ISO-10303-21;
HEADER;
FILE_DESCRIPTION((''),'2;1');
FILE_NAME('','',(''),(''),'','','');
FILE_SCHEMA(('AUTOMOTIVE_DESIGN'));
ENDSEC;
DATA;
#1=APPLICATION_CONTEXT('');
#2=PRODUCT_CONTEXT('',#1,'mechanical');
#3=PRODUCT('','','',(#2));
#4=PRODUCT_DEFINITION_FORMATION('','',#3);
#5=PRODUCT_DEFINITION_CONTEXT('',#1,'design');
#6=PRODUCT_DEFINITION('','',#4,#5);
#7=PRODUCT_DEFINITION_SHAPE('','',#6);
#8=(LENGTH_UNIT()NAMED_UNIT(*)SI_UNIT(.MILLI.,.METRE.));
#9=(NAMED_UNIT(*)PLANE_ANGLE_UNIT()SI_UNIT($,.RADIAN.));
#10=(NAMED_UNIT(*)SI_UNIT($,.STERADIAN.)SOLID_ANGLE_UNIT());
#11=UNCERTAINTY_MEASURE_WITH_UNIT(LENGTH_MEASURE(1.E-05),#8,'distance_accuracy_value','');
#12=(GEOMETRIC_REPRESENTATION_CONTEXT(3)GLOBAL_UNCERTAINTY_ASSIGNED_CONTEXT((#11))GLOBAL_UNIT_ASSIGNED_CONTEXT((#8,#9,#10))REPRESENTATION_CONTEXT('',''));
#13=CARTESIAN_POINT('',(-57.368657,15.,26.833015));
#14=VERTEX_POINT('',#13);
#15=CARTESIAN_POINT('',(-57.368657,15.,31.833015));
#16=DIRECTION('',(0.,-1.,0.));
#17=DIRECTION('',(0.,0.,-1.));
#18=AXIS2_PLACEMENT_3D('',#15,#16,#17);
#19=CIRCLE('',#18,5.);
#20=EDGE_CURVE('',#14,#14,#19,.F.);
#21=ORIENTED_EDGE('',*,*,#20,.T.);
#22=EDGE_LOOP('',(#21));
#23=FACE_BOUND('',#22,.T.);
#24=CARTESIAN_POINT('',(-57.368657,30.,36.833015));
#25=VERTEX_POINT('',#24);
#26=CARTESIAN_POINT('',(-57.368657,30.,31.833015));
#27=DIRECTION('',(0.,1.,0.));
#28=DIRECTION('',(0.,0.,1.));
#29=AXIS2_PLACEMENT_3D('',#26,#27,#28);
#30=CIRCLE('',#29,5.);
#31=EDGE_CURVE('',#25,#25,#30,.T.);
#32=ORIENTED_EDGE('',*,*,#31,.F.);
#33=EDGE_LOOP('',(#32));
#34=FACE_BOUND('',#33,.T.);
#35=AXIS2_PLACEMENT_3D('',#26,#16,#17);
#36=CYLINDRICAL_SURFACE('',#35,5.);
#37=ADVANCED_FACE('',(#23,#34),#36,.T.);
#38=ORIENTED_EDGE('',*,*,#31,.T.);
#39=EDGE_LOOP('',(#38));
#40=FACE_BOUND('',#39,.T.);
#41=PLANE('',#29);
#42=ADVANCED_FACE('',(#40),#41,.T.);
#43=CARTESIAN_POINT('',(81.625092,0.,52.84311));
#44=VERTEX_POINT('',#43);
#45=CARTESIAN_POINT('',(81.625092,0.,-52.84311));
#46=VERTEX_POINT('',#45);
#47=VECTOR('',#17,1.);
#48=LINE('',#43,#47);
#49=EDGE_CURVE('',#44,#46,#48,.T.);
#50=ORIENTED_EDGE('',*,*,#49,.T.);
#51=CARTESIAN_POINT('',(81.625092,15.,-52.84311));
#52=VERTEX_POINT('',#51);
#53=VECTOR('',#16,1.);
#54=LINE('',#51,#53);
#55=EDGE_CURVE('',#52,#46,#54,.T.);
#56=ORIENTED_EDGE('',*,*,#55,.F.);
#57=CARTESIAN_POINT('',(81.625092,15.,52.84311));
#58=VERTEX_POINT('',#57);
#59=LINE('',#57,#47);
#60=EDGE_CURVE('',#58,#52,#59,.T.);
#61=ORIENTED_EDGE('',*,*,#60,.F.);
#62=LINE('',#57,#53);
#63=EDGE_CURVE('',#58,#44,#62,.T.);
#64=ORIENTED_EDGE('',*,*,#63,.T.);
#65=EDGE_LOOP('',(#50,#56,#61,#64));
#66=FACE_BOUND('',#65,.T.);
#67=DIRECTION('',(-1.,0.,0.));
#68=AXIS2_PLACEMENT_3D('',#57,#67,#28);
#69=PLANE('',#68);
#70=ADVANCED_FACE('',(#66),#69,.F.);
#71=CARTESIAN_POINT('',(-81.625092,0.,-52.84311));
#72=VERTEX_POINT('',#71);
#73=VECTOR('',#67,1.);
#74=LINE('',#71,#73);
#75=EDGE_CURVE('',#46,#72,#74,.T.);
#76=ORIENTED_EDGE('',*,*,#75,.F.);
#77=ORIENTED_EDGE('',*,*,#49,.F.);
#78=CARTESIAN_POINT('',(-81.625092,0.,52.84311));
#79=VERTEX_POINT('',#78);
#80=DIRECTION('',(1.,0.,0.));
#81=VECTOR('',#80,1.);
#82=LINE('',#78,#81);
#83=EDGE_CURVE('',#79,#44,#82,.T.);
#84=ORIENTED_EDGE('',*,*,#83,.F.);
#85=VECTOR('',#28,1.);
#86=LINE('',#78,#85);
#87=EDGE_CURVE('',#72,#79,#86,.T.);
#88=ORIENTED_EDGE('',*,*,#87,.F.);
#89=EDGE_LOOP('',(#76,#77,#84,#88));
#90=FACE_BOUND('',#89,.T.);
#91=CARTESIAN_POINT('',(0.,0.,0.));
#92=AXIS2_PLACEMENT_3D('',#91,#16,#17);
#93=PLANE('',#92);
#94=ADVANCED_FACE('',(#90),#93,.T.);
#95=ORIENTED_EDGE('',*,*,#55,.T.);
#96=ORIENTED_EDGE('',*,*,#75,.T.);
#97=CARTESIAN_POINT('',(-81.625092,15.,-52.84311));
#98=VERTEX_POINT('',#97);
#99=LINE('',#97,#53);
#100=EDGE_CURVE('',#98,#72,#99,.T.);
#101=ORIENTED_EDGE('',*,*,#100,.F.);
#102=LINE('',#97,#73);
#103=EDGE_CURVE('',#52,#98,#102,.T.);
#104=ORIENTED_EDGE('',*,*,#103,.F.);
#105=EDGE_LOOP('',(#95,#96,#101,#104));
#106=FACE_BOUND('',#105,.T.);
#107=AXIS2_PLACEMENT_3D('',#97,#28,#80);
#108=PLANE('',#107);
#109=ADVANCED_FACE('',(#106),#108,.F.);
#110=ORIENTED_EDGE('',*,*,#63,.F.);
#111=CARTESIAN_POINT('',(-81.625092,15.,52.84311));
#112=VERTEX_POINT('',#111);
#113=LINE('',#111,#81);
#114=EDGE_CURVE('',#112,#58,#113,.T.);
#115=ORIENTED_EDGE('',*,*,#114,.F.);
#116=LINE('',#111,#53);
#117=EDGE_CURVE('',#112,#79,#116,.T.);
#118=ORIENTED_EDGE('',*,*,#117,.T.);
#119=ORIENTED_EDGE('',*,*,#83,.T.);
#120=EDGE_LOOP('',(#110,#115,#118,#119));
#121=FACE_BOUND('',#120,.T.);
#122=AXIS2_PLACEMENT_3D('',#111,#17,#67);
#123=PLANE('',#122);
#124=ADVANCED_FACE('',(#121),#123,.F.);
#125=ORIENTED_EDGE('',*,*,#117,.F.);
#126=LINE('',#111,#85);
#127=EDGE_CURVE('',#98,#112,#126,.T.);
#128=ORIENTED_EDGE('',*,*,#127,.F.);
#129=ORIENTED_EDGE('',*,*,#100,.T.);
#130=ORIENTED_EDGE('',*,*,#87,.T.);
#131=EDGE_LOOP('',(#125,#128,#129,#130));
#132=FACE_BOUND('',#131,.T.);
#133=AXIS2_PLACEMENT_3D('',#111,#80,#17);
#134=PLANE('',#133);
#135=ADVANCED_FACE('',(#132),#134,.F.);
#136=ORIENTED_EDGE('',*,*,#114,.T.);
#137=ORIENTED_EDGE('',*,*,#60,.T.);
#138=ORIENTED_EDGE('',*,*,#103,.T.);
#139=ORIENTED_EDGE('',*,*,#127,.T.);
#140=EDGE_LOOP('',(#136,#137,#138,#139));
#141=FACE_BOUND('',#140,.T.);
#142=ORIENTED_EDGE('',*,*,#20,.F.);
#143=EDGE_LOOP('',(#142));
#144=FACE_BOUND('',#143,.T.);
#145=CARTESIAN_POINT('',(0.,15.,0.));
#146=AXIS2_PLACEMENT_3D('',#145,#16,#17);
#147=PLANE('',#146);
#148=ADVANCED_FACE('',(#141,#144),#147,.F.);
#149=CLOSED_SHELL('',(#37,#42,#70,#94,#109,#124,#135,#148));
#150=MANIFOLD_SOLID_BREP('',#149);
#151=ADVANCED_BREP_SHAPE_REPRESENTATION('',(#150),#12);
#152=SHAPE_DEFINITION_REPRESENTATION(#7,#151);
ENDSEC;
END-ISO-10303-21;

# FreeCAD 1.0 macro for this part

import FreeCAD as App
import Part
import Sketcher

V = App.Vector
Q = App.Units.Quantity

doc = App.newDocument("Part")
body = doc.addObject("PartDesign::Body", "Body")

# Sketch on XZ plane
sketch1 = body.newObject("Sketcher::SketchObject", "Sketch")
sketch1.AttachmentSupport = (doc.getObject("XZ_Plane"), [""])
sketch1.MapMode = "FlatFace"
sketch1.addGeometry([
    Part.LineSegment(V(-82, -53, 0), V(-82, 53, 0)),
    Part.LineSegment(V(-82, 53, 0), V(82, 53, 0)),
    Part.LineSegment(V(82, 53, 0), V(82, -53, 0)),
    Part.LineSegment(V(82, -53, 0), V(-82, -53, 0)),
], False)
sketch1.addConstraint([
    Sketcher.Constraint("Coincident", 0, 2, 1, 1),
    Sketcher.Constraint("Coincident", 1, 2, 2, 1),
    Sketcher.Constraint("Coincident", 2, 2, 3, 1),
    Sketcher.Constraint("Coincident", 3, 2, 0, 1),
    Sketcher.Constraint("Vertical", 0),
    Sketcher.Constraint("Horizontal", 1),
    Sketcher.Constraint("Vertical", 2),
    Sketcher.Constraint("Horizontal", 3),
    Sketcher.Constraint("Symmetric", 0, 2, 2, 2, -1, 1),
    Sketcher.Constraint("DistanceY", 0, 1, 0, 2, Q("105.686219 mm")),
    Sketcher.Constraint("DistanceX", 1, 1, 1, 2, Q("163.250183 mm")),
])
pad1 = body.newObject("PartDesign::Pad", "Pad")
pad1.Profile = sketch1
pad1.Length = 15
pad1.Reversed = True

# Sketch on XZ plane
sketch2 = body.newObject("Sketcher::SketchObject", "Sketch001")
sketch2.AttachmentSupport = (doc.getObject("XZ_Plane"), [""])
sketch2.MapMode = "FlatFace"
sketch2.AttachmentOffset = App.Placement(V(0, 0, -15), App.Rotation())
sketch2.addGeometry(Part.Circle(V(-57, 32, 0), V(0, 0, 1), 5), False)
sketch2.addConstraint([
    Sketcher.Constraint("Diameter", 0, Q("10 mm")),
    Sketcher.Constraint("DistanceX", 0, 3, -1, 1, Q("57.368657 mm")),
    Sketcher.Constraint("DistanceY", -1, 1, 0, 3, Q("31.833015 mm")),
])
pad2 = body.newObject("PartDesign::Pad", "Pad001")
pad2.Profile = sketch2
pad2.Length = 15
pad2.Reversed = True

doc.recompute()
